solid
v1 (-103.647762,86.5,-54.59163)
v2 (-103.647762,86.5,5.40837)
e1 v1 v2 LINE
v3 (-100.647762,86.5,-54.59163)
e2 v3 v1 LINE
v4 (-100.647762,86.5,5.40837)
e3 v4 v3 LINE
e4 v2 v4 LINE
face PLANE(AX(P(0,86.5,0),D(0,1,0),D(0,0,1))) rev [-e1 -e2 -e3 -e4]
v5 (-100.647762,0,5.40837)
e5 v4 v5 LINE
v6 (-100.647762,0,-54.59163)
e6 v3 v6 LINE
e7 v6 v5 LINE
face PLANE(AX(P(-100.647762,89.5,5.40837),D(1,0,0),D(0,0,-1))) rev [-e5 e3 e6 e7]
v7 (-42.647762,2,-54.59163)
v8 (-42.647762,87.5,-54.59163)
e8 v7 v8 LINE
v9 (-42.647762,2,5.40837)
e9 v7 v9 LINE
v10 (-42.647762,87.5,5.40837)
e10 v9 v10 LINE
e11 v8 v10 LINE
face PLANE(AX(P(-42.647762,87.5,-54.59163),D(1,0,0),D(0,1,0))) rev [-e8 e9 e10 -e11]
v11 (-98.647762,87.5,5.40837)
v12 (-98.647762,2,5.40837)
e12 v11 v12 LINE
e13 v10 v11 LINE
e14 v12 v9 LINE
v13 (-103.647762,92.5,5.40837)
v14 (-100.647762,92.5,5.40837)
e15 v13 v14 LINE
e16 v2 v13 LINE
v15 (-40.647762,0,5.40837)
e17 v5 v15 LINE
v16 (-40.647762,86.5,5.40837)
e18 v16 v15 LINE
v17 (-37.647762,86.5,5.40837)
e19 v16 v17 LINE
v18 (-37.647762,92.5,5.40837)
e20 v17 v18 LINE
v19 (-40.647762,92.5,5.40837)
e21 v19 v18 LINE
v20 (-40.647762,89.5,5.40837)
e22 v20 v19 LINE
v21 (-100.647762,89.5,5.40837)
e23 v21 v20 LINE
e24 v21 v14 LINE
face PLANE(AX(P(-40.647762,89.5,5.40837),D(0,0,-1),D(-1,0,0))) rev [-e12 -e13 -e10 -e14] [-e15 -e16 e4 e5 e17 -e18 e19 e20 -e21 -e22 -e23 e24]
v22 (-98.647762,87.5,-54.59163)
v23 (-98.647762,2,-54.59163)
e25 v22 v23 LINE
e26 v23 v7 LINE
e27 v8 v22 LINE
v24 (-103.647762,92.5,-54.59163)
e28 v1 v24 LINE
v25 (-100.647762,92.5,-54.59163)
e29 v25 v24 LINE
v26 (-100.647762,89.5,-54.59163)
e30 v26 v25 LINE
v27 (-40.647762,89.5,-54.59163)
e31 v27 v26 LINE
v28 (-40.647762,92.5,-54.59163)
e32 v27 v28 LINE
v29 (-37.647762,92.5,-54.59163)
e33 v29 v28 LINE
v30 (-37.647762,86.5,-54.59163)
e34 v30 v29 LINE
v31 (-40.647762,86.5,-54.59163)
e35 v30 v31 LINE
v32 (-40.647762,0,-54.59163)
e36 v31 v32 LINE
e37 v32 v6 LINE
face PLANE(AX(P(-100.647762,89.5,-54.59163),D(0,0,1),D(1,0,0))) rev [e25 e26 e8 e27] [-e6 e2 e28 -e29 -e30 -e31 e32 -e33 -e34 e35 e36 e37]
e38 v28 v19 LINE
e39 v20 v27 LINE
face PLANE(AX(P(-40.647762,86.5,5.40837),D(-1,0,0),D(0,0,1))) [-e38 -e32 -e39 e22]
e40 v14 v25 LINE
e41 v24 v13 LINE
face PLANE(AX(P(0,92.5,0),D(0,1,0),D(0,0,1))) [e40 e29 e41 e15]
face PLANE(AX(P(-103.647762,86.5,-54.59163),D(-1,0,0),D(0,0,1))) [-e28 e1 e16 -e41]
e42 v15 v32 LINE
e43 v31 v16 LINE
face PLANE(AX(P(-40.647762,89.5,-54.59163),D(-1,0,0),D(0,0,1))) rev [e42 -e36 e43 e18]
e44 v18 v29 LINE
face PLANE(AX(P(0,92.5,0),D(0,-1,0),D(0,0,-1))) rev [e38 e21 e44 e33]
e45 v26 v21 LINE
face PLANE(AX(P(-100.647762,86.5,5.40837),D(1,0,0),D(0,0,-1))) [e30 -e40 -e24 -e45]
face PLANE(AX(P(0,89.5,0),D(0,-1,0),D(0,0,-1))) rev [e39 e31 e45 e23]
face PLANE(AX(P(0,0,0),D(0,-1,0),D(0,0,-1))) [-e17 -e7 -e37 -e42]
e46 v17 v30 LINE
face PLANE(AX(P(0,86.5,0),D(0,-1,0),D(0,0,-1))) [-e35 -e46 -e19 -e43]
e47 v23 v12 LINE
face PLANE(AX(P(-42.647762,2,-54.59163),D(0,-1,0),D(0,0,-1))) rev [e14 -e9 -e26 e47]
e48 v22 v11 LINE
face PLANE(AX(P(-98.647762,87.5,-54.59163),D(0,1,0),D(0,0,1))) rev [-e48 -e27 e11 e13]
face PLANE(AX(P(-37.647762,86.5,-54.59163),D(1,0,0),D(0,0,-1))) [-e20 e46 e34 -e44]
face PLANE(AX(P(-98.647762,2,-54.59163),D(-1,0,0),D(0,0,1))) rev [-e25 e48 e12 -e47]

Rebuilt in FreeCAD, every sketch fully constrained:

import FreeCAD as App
import Part
import Sketcher
from FreeCAD import Vector

doc = App.newDocument("Part")
body = doc.addObject("PartDesign::Body", "Body")

# Sketch on XZ plane
sketch1 = body.newObject("Sketcher::SketchObject", "Sketch")
sketch1.AttachmentSupport = (doc.getObject("XZ_Plane"), [""])
sketch1.MapMode = "FlatFace"
sketch1.addGeometry(Part.LineSegment(Vector(-101, -55, 0), Vector(-101, 5, 0)), False)
sketch1.addGeometry(Part.LineSegment(Vector(-101, 5, 0), Vector(-41, 5, 0)), False)
sketch1.addGeometry(Part.LineSegment(Vector(-41, 5, 0), Vector(-41, -55, 0)), False)
sketch1.addGeometry(Part.LineSegment(Vector(-41, -55, 0), Vector(-101, -55, 0)), False)
sketch1.addConstraint(Sketcher.Constraint("Coincident", 0, 2, 1, 1))
sketch1.addConstraint(Sketcher.Constraint("Coincident", 1, 2, 2, 1))
sketch1.addConstraint(Sketcher.Constraint("Coincident", 2, 2, 3, 1))
sketch1.addConstraint(Sketcher.Constraint("Coincident", 3, 2, 0, 1))
sketch1.addConstraint(Sketcher.Constraint("Vertical", 0))
sketch1.addConstraint(Sketcher.Constraint("Horizontal", 1))
sketch1.addConstraint(Sketcher.Constraint("Vertical", 2))
sketch1.addConstraint(Sketcher.Constraint("Horizontal", 3))
sketch1.addConstraint(Sketcher.Constraint("Equal", 3, 0))
sketch1.addConstraint(Sketcher.Constraint("DistanceX", 1, 1, 1, 2, 60.0))
sketch1.addConstraint(Sketcher.Constraint("DistanceX", 0, 2, -1, 1, 100.647762))
sketch1.addConstraint(Sketcher.Constraint("DistanceY", -1, 1, 0, 2, 5.40837))
pad1 = body.newObject("PartDesign::Pad", "Pad")
pad1.Profile = sketch1
pad1.Length = 89.5
pad1.Reversed = True

# Sketch on XY plane
sketch2 = body.newObject("Sketcher::SketchObject", "Sketch001")
sketch2.AttachmentSupport = (doc.getObject("XY_Plane"), [""])
sketch2.MapMode = "FlatFace"
sketch2.AttachmentOffset = App.Placement(Vector(0, 0, 5.40837), App.Rotation())
sketch2.addGeometry(Part.LineSegment(Vector(-99, 88, 0), Vector(-99, 2, 0)), False)
sketch2.addGeometry(Part.LineSegment(Vector(-99, 2, 0), Vector(-43, 2, 0)), False)
sketch2.addGeometry(Part.LineSegment(Vector(-43, 2, 0), Vector(-43, 88, 0)), False)
sketch2.addGeometry(Part.LineSegment(Vector(-43, 88, 0), Vector(-99, 88, 0)), False)
sketch2.addConstraint(Sketcher.Constraint("Coincident", 0, 2, 1, 1))
sketch2.addConstraint(Sketcher.Constraint("Coincident", 1, 2, 2, 1))
sketch2.addConstraint(Sketcher.Constraint("Coincident", 2, 2, 3, 1))
sketch2.addConstraint(Sketcher.Constraint("Coincident", 3, 2, 0, 1))
sketch2.addConstraint(Sketcher.Constraint("Vertical", 0))
sketch2.addConstraint(Sketcher.Constraint("Horizontal", 1))
sketch2.addConstraint(Sketcher.Constraint("Vertical", 2))
sketch2.addConstraint(Sketcher.Constraint("Horizontal", 3))
sketch2.addConstraint(Sketcher.Constraint("DistanceX", 1, 1, 1, 2, 56.0))
sketch2.addConstraint(Sketcher.Constraint("DistanceY", 0, 2, 0, 1, 85.5))
sketch2.addConstraint(Sketcher.Constraint("DistanceY", -1, 1, 0, 2, 2.0))
sketch2.addConstraint(Sketcher.Constraint("DistanceX", 0, 2, -1, 1, 98.647762))
pocket1 = body.newObject("PartDesign::Pocket", "Pocket")
pocket1.Profile = sketch2
pocket1.Length = 60

# Sketch on XZ plane
sketch3 = body.newObject("Sketcher::SketchObject", "Sketch002")
sketch3.AttachmentSupport = (doc.getObject("XZ_Plane"), [""])
sketch3.MapMode = "FlatFace"
sketch3.AttachmentOffset = App.Placement(Vector(0, 0, -89.5), App.Rotation())
sketch3.addGeometry(Part.LineSegment(Vector(-103.6, -54.6, 0), Vector(-103.6, 5.4, 0)), False)
sketch3.addGeometry(Part.LineSegment(Vector(-103.6, 5.4, 0), Vector(-100.6, 5.4, 0)), False)
sketch3.addGeometry(Part.LineSegment(Vector(-100.6, 5.4, 0), Vector(-100.6, -54.6, 0)), False)
sketch3.addGeometry(Part.LineSegment(Vector(-100.6, -54.6, 0), Vector(-103.6, -54.6, 0)), False)
sketch3.addGeometry(Part.LineSegment(Vector(-40.6, -54.6, 0), Vector(-40.6, 5.4, 0)), False)
sketch3.addGeometry(Part.LineSegment(Vector(-40.6, 5.4, 0), Vector(-37.6, 5.4, 0)), False)
sketch3.addGeometry(Part.LineSegment(Vector(-37.6, 5.4, 0), Vector(-37.6, -54.6, 0)), False)
sketch3.addGeometry(Part.LineSegment(Vector(-37.6, -54.6, 0), Vector(-40.6, -54.6, 0)), False)
sketch3.addConstraint(Sketcher.Constraint("Coincident", 0, 2, 1, 1))
sketch3.addConstraint(Sketcher.Constraint("Coincident", 1, 2, 2, 1))
sketch3.addConstraint(Sketcher.Constraint("Coincident", 2, 2, 3, 1))
sketch3.addConstraint(Sketcher.Constraint("Coincident", 3, 2, 0, 1))
sketch3.addConstraint(Sketcher.Constraint("Coincident", 4, 2, 5, 1))
sketch3.addConstraint(Sketcher.Constraint("Coincident", 5, 2, 6, 1))
sketch3.addConstraint(Sketcher.Constraint("Coincident", 6, 2, 7, 1))
sketch3.addConstraint(Sketcher.Constraint("Coincident", 7, 2, 4, 1))
sketch3.addConstraint(Sketcher.Constraint("Vertical", 0))
sketch3.addConstraint(Sketcher.Constraint("Horizontal", 1))
sketch3.addConstraint(Sketcher.Constraint("Vertical", 2))
sketch3.addConstraint(Sketcher.Constraint("Horizontal", 3))
sketch3.addConstraint(Sketcher.Constraint("Vertical", 4))
sketch3.addConstraint(Sketcher.Constraint("Horizontal", 5))
sketch3.addConstraint(Sketcher.Constraint("Vertical", 6))
sketch3.addConstraint(Sketcher.Constraint("Horizontal", 7))
sketch3.addConstraint(Sketcher.Constraint("Horizontal", 1, 2, 4, 2))
sketch3.addConstraint(Sketcher.Constraint("Horizontal", 3, 2, 6, 2))
sketch3.addConstraint(Sketcher.Constraint("Equal", 3, 5))
sketch3.addConstraint(Sketcher.Constraint("DistanceX", 1, 1, 1, 2, 3.0))
sketch3.addConstraint(Sketcher.Constraint("DistanceY", 0, 1, 0, 2, 60.0))
sketch3.addConstraint(Sketcher.Constraint("DistanceX", 1, 2, 4, 2, 60.0))
sketch3.addConstraint(Sketcher.Constraint("DistanceX", 0, 2, -1, 1, 103.647762))
sketch3.addConstraint(Sketcher.Constraint("DistanceY", -1, 1, 0, 2, 5.40837))
pad2 = body.newObject("PartDesign::Pad", "Pad001")
pad2.Profile = sketch3
pad2.Type = "TwoLengths"
pad2.Length = 3
pad2.Length2 = 3
pad2.Reversed = True

doc.recompute()
